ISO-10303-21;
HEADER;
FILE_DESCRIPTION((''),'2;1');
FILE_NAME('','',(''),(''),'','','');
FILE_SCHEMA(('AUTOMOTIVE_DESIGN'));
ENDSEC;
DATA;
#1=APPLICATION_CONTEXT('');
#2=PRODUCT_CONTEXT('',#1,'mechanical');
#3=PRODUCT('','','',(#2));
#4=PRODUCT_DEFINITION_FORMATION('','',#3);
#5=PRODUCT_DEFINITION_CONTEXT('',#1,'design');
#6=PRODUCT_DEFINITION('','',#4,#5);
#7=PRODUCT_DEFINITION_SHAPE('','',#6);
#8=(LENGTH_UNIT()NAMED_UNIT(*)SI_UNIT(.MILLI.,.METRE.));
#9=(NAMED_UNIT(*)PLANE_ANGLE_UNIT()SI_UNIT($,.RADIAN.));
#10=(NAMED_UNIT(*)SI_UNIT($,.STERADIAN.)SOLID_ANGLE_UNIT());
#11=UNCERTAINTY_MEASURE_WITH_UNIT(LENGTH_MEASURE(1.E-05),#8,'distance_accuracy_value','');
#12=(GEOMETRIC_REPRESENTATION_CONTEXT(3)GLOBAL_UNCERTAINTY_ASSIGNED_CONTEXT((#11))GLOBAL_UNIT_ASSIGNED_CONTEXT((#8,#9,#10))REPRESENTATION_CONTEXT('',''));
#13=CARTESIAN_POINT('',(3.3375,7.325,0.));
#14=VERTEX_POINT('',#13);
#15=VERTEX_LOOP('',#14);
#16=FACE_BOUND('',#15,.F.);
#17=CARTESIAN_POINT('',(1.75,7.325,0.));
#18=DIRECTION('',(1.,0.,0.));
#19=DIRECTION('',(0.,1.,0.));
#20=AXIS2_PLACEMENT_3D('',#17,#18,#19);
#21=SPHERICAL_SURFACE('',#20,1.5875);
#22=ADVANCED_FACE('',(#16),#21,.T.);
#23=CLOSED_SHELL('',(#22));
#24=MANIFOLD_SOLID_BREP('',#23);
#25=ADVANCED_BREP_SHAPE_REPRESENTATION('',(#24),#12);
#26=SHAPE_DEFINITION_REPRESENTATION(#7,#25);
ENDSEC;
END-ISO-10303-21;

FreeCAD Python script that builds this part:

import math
import FreeCAD as App
import Part
import Sketcher
Q = App.Units.Quantity

doc = App.newDocument("Part")
body = doc.addObject("PartDesign::Body", "Body")

sketch1 = body.newObject("Sketcher::SketchObject", "Sketch")
sketch1.AttachmentSupport = (doc.getObject("XY_Plane"), [""])
sketch1.MapMode = "FlatFace"
sketch1.addGeometry([
    Part.LineSegment(App.Vector(0.2, 7.3, 0), App.Vector(3.3, 7.3, 0)),
    Part.ArcOfCircle(Part.Circle(App.Vector(1.8, 7.3, 0), App.Vector(0, 0, 1), 1.6), math.radians(0), math.radians(180)),
], False)
sketch1.addGeometry(Part.LineSegment(App.Vector(3.3, 7.3, 0), App.Vector(0.2, 7.3, 0)), True)
sketch1.addConstraint([
    Sketcher.Constraint("Coincident", 0, 1, 1, 2),
    Sketcher.Constraint("Coincident", 1, 1, 0, 2),
    Sketcher.Constraint("Horizontal", 0),
    Sketcher.Constraint("Horizontal", 2),
    Sketcher.Constraint("Coincident", 2, 1, 1, 1),
    Sketcher.Constraint("Horizontal", 1, 3, 0, 1),
    Sketcher.Constraint("Equal", 0, 2),
    Sketcher.Constraint("Radius", 1, Q("0.0625 in")),
    Sketcher.Constraint("DistanceX", -1, 1, 1, 3, Q("1.75 mm")),
    Sketcher.Constraint("DistanceY", -1, 1, 1, 3, Q("7.325 mm")),
])
revolution = body.newObject("PartDesign::Revolution", "Revolution")
revolution.Profile = sketch1
revolution.ReferenceAxis = (sketch1, ["Axis0"])
revolution.Angle = 360

doc.recompute()
